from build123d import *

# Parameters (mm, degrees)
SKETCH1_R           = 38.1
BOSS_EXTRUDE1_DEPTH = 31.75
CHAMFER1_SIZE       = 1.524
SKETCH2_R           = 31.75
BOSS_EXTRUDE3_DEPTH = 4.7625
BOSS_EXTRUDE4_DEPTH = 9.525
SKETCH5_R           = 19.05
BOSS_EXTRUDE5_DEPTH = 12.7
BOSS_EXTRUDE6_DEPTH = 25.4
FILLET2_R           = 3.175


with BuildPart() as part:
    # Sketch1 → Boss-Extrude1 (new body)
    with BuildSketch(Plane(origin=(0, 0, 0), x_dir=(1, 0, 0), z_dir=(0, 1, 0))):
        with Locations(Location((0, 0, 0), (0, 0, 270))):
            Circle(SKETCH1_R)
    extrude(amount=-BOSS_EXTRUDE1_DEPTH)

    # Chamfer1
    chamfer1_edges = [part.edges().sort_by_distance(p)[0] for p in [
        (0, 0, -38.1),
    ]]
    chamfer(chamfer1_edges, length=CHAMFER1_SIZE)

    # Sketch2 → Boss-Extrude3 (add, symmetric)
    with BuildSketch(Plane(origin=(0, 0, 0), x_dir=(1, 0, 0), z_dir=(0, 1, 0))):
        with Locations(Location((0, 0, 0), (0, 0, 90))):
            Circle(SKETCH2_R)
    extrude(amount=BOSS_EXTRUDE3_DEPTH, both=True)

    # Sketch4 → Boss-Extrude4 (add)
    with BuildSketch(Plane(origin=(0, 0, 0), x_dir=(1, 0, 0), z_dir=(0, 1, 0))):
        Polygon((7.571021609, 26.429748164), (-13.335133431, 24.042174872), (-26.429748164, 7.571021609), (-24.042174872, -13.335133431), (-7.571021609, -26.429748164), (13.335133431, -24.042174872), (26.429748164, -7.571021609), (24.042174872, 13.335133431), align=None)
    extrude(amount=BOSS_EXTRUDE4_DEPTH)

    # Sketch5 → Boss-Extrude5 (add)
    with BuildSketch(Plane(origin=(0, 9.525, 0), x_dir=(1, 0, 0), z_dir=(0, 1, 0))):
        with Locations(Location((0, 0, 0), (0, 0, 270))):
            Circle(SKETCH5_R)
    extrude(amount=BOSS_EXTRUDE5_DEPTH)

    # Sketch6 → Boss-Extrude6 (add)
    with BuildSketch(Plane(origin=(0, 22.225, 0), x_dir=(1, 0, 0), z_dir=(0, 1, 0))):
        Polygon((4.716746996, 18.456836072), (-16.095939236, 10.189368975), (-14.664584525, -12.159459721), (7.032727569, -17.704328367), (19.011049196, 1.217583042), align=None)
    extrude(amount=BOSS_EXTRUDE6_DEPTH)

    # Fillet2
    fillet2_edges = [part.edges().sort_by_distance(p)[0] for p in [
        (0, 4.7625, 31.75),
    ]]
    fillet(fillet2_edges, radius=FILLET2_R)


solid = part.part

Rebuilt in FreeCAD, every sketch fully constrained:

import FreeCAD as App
import Part
import Sketcher
Q = App.Units.Quantity


def edges_at(feature, points):
    """Names of the edges that pass closest to the given points."""
    edges = feature.Shape.Edges
    near = lambda p: min(range(len(edges)), key=lambda i: edges[i].distToShape(Part.Vertex(*p))[0])
    return sorted({f"Edge{near(p) + 1}" for p in points})


def add_polygon(sketch, points):
    """Adds a closed chain of lines whose ends are joined by coincident constraints."""
    first, n = sketch.GeometryCount, len(points)
    for a, b in zip(points, points[1:] + points[:1]):
        sketch.addGeometry(Part.LineSegment(App.Vector(*a, 0), App.Vector(*b, 0)), False)
    for i in range(n):
        sketch.addConstraint(Sketcher.Constraint("Coincident", first + i, 2, first + (i + 1) % n, 1))

doc = App.newDocument("Part")
body = doc.addObject("PartDesign::Body", "Body")

# Sketch on XZ plane
sketch1 = body.newObject("Sketcher::SketchObject", "Sketch")
sketch1.AttachmentSupport = (doc.getObject("XZ_Plane"), [""])
sketch1.MapMode = "FlatFace"
sketch1.addGeometry(Part.Circle(App.Vector(0, 0, 0), App.Vector(0, 0, 1), 38), False)
sketch1.addConstraint(Sketcher.Constraint("Coincident", 0, 3, -1, 1))
sketch1.addConstraint(Sketcher.Constraint("Diameter", 0, Q("3 in")))
pad1 = body.newObject("PartDesign::Pad", "Pad")
pad1.Profile = sketch1
pad1.Length = Q("1.25 in")
doc.recompute()

chamfer = body.newObject("PartDesign::Chamfer", "Chamfer")
chamfer.Base = (pad1, edges_at(pad1, [(0, 0, -38.1)]))
chamfer.Size = Q("0.06 in")

# Sketch on XZ plane
sketch2 = body.newObject("Sketcher::SketchObject", "Sketch001")
sketch2.AttachmentSupport = (doc.getObject("XZ_Plane"), [""])
sketch2.MapMode = "FlatFace"
sketch2.addGeometry(Part.Circle(App.Vector(0, 0, 0), App.Vector(0, 0, 1), 32), False)
sketch2.addConstraint(Sketcher.Constraint("Coincident", 0, 3, -1, 1))
sketch2.addConstraint(Sketcher.Constraint("Diameter", 0, Q("2.5 in")))
pad2 = body.newObject("PartDesign::Pad", "Pad001")
pad2.Profile = sketch2
pad2.Length = Q("0.375 in")
pad2.Midplane = True

# Sketch on XZ plane
sketch3 = body.newObject("Sketcher::SketchObject", "Sketch002")
sketch3.AttachmentSupport = (doc.getObject("XZ_Plane"), [""])
sketch3.MapMode = "FlatFace"
add_polygon(sketch3, [(8, -26), (-13, -24), (-26, -8), (-24, 13), (-8, 26), (13, 24), (26, 8), (24, -13)])  # lines 0-7
sketch3.addConstraint(Sketcher.Constraint("Symmetric", 0, 2, 4, 2, -1, 1))
sketch3.addConstraint(Sketcher.Constraint("Symmetric", 1, 2, 5, 2, -1, 1))
sketch3.addConstraint(Sketcher.Constraint("Symmetric", 2, 2, 6, 2, -1, 1))
sketch3.addConstraint(Sketcher.Constraint("Symmetric", 3, 2, 7, 2, -1, 1))
sketch3.addConstraint(Sketcher.Constraint("Perpendicular", 0, 2))
sketch3.addConstraint(Sketcher.Constraint("Perpendicular", 1, 3))
sketch3.addConstraint(Sketcher.Constraint("Equal", 0, 1))
sketch3.addConstraint(Sketcher.Constraint("Equal", 1, 2))
sketch3.addConstraint(Sketcher.Constraint("Equal", 2, 3))
sketch3.addConstraint(Sketcher.Constraint("Distance", 0, 21.042049))
sketch3.addConstraint(Sketcher.Constraint("DistanceX", 1, 2, -1, 1, 26.429748))
sketch3.addConstraint(Sketcher.Constraint("DistanceY", 1, 2, -1, 1, 7.571022))
pad3 = body.newObject("PartDesign::Pad", "Pad002")
pad3.Profile = sketch3
pad3.Length = Q("0.375 in")
pad3.Reversed = True

# Sketch on XZ plane
sketch4 = body.newObject("Sketcher::SketchObject", "Sketch003")
sketch4.AttachmentSupport = (doc.getObject("XZ_Plane"), [""])
sketch4.MapMode = "FlatFace"
sketch4.AttachmentOffset = App.Placement(App.Vector(0, 0, -0.375 * 25.4), App.Rotation())
sketch4.addGeometry(Part.Circle(App.Vector(0, 0, 0), App.Vector(0, 0, 1), 19), False)
sketch4.addConstraint(Sketcher.Constraint("Coincident", 0, 3, -1, 1))
sketch4.addConstraint(Sketcher.Constraint("Diameter", 0, Q("1.5 in")))
pad4 = body.newObject("PartDesign::Pad", "Pad003")
pad4.Profile = sketch4
pad4.Length = Q("0.5 in")
pad4.Reversed = True

# Sketch on XZ plane
sketch5 = body.newObject("Sketcher::SketchObject", "Sketch004")
sketch5.AttachmentSupport = (doc.getObject("XZ_Plane"), [""])
sketch5.MapMode = "FlatFace"
sketch5.AttachmentOffset = App.Placement(App.Vector(0, 0, -0.875 * 25.4), App.Rotation())
add_polygon(sketch5, [(5, -18), (-16, -10), (-15, 12), (7, 18), (19, -1)])  # lines 0-4
sketch5.addConstraint(Sketcher.Constraint("Equal", 0, 1))
sketch5.addConstraint(Sketcher.Constraint("Equal", 1, 2))
sketch5.addConstraint(Sketcher.Constraint("Equal", 2, 3))
sketch5.addConstraint(Sketcher.Constraint("Equal", 3, 4))
sketch5.addConstraint(Sketcher.Constraint("Distance", 0, 22.394618))
sketch5.addConstraint(Sketcher.Constraint("DistanceX", 0, 2, -1, 1, 16.095939))
sketch5.addConstraint(Sketcher.Constraint("DistanceY", 0, 2, -1, 1, 10.189369))
sketch5.addConstraint(Sketcher.Constraint("DistanceY", -1, 1, 1, 2, 12.15946))
sketch5.addConstraint(Sketcher.Constraint("DistanceY", -1, 1, 2, 2, 17.704328))
sketch5.addConstraint(Sketcher.Constraint("DistanceX", -1, 1, 3, 2, 19.011049))
pad5 = body.newObject("PartDesign::Pad", "Pad004")
pad5.Profile = sketch5
pad5.Length = Q("1 in")
pad5.Reversed = True
doc.recompute()

fillet = body.newObject("PartDesign::Fillet", "Fillet")
fillet.Base = (pad5, edges_at(pad5, [(0, 4.763, 31.75)]))
fillet.Radius = Q("0.125 in")

doc.recompute()
